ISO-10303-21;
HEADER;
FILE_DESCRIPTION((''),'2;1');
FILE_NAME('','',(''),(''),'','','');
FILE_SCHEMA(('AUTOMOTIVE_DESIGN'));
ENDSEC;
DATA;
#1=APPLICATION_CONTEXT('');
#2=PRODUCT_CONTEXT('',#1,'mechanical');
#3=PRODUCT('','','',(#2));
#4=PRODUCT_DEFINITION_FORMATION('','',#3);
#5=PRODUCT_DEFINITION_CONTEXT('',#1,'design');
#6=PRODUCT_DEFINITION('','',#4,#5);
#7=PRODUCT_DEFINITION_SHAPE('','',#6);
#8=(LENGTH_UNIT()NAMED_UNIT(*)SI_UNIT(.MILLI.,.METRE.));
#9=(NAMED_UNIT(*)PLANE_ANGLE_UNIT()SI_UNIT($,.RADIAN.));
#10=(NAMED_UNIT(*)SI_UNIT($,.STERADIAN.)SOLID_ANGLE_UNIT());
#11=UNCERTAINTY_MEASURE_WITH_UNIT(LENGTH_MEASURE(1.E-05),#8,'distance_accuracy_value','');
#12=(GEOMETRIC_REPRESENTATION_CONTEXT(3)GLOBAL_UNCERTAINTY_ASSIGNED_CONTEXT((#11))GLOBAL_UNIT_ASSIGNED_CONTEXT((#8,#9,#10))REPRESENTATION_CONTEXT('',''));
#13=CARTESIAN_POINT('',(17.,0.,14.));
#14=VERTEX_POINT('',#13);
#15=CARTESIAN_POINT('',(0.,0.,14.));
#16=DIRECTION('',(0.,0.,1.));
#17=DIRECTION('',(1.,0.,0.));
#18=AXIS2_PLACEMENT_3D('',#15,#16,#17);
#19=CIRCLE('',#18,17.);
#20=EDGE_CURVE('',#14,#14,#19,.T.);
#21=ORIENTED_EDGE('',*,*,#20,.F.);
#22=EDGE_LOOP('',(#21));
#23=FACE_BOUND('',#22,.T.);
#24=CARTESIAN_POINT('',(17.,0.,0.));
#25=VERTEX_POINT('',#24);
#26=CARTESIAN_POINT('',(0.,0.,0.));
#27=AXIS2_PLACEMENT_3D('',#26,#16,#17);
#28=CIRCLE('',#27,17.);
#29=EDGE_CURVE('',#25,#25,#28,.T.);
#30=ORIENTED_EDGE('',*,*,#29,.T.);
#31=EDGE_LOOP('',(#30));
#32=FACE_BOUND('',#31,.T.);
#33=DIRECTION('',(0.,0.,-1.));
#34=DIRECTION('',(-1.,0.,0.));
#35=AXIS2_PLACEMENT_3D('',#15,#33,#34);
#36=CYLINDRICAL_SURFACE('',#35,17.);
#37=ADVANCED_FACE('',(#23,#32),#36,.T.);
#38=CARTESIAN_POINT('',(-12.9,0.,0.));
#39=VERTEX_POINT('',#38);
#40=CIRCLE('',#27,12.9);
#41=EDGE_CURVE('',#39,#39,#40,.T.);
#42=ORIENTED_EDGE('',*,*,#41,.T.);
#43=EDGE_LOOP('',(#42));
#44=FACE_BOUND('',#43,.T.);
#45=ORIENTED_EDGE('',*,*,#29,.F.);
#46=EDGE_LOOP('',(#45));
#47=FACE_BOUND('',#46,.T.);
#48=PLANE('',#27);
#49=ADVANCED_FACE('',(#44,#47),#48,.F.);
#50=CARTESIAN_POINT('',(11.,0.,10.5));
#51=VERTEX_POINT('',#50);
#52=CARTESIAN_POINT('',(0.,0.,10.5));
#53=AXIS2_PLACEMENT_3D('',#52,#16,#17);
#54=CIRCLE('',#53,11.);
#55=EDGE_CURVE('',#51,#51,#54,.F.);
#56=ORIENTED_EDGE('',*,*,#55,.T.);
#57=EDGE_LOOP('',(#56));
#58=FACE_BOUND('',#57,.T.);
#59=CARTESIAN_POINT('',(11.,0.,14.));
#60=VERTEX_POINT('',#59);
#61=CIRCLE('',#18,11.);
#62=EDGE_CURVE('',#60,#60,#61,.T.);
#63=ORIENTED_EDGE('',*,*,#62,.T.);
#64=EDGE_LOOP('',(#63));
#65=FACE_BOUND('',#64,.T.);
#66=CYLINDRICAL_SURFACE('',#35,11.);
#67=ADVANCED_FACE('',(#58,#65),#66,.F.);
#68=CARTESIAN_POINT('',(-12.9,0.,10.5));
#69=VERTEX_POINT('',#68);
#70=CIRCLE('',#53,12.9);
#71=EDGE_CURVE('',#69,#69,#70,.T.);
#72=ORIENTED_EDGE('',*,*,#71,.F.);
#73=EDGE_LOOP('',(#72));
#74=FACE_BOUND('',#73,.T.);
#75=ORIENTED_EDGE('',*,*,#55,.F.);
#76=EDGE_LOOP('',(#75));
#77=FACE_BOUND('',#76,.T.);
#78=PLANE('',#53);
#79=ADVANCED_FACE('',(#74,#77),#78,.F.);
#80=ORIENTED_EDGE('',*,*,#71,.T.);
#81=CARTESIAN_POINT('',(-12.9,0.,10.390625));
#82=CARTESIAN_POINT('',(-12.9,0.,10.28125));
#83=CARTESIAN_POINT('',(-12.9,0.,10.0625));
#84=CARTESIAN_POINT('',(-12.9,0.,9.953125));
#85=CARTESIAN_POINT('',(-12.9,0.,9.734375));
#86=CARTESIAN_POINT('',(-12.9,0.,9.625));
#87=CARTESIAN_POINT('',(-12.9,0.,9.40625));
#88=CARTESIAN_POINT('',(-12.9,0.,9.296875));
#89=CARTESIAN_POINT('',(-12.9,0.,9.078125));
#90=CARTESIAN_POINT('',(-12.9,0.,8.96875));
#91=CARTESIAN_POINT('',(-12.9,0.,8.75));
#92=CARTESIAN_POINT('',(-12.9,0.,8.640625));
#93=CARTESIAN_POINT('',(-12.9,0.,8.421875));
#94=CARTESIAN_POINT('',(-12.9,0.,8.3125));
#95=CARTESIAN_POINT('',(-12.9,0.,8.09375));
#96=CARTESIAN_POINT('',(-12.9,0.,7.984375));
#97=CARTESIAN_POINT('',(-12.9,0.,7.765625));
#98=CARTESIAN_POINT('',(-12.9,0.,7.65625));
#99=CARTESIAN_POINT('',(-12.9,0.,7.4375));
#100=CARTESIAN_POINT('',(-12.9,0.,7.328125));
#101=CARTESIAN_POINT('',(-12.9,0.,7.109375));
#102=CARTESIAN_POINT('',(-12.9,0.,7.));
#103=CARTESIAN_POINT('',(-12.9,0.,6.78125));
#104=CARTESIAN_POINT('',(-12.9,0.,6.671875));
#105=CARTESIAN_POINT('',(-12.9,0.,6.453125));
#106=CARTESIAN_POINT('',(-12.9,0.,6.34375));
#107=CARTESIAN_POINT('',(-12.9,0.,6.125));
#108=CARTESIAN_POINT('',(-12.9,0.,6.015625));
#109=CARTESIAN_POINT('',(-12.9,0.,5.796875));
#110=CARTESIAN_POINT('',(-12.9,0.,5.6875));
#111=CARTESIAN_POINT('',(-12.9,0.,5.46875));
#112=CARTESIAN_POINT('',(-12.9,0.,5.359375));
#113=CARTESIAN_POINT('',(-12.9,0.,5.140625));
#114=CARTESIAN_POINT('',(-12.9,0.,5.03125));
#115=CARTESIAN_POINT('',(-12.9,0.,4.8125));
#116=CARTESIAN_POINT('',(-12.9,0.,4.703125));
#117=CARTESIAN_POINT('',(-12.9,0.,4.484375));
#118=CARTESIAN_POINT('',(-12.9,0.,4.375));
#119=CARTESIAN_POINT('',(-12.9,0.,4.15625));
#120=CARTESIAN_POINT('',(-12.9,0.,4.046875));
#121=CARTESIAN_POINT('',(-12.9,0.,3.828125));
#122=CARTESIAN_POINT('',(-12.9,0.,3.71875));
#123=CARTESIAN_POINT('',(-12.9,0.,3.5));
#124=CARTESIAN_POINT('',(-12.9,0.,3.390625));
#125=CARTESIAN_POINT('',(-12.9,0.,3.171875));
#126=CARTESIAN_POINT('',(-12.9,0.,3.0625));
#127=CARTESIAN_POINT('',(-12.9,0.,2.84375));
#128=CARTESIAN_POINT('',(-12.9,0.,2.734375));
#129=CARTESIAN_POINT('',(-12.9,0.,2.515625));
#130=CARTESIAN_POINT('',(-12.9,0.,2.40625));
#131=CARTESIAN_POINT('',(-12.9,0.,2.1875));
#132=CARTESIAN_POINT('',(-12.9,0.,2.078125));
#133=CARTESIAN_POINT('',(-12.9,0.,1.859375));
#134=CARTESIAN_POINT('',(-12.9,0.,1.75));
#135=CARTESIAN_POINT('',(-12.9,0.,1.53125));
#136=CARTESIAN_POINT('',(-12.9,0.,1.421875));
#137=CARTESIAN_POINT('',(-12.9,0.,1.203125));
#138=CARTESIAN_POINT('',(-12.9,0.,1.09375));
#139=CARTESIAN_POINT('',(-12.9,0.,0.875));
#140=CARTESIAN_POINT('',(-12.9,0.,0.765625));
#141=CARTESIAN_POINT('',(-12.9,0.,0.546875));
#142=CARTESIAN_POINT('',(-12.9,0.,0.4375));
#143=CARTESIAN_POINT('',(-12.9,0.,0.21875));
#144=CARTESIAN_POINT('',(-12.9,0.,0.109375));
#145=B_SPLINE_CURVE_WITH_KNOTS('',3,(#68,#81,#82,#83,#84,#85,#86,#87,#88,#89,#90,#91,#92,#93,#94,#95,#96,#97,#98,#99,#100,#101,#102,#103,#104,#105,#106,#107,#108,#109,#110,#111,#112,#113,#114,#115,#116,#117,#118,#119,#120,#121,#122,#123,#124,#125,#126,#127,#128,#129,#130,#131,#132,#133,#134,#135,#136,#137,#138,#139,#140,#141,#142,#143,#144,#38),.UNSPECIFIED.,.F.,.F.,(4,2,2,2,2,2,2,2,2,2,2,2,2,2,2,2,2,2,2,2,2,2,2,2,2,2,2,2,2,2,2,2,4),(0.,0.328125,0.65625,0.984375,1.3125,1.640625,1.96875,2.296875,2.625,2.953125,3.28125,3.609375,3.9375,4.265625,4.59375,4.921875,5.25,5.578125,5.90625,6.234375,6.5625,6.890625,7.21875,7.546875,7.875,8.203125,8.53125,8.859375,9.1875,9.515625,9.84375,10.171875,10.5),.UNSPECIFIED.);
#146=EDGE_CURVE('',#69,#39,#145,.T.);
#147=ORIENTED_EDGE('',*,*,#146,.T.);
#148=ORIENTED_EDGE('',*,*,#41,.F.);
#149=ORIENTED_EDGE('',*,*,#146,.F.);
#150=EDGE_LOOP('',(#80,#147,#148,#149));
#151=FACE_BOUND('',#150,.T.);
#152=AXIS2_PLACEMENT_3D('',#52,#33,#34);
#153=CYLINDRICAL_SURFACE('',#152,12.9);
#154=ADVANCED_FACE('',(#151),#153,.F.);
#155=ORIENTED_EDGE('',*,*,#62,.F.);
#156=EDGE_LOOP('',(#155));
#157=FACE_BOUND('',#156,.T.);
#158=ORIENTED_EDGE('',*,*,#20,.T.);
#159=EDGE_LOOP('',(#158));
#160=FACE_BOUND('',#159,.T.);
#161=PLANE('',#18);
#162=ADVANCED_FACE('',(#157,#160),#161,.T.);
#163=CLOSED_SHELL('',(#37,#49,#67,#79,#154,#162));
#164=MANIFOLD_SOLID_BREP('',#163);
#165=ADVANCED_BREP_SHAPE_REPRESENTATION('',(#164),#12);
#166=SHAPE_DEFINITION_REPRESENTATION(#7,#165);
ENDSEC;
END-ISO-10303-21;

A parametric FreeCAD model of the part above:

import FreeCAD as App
import Part
import Sketcher

doc = App.newDocument("Part")
body = doc.addObject("PartDesign::Body", "Body")

sketch1 = doc.addObject("Sketcher::SketchObject", "Sketch")
body.addObject(sketch1)
sketch1.AttachmentSupport = (doc.XY_Plane, [""])
sketch1.MapMode = "FlatFace"
sketch1.addGeometry(Part.Circle(App.Vector(0, 0, 0), App.Vector(0, 0, 1), 17), False)
sketch1.addConstraint(Sketcher.Constraint("Coincident", 0, 3, -1, 1))
sketch1.addConstraint(Sketcher.Constraint("Diameter", 0, 34.0))
pad1 = doc.addObject("PartDesign::Pad", "Pad")
body.addObject(pad1)
pad1.Profile = sketch1
pad1.Length = 14

sketch2 = doc.addObject("Sketcher::SketchObject", "Sketch001")
body.addObject(sketch2)
sketch2.AttachmentSupport = (doc.XY_Plane, [""])
sketch2.MapMode = "FlatFace"
sketch2.addGeometry(Part.Circle(App.Vector(0, 0, 0), App.Vector(0, 0, 1), 13), False)
sketch2.addConstraint(Sketcher.Constraint("Coincident", 0, 3, -1, 1))
sketch2.addConstraint(Sketcher.Constraint("Diameter", 0, 25.8))
pocket1 = doc.addObject("PartDesign::Pocket", "Pocket")
body.addObject(pocket1)
pocket1.Profile = sketch2
pocket1.Length = 10.5
pocket1.Reversed = True

sketch3 = doc.addObject("Sketcher::SketchObject", "Sketch002")
body.addObject(sketch3)
sketch3.AttachmentSupport = (doc.XY_Plane, [""])
sketch3.MapMode = "FlatFace"
sketch3.addGeometry(Part.Circle(App.Vector(0, 0, 0), App.Vector(0, 0, 1), 11), False)
sketch3.addConstraint(Sketcher.Constraint("Coincident", 0, 3, -1, 1))
sketch3.addConstraint(Sketcher.Constraint("Diameter", 0, 22.0))
pocket2 = doc.addObject("PartDesign::Pocket", "Pocket001")
body.addObject(pocket2)
pocket2.Profile = sketch3
pocket2.Type = "ThroughAll"
pocket2.Reversed = True

doc.recompute()
